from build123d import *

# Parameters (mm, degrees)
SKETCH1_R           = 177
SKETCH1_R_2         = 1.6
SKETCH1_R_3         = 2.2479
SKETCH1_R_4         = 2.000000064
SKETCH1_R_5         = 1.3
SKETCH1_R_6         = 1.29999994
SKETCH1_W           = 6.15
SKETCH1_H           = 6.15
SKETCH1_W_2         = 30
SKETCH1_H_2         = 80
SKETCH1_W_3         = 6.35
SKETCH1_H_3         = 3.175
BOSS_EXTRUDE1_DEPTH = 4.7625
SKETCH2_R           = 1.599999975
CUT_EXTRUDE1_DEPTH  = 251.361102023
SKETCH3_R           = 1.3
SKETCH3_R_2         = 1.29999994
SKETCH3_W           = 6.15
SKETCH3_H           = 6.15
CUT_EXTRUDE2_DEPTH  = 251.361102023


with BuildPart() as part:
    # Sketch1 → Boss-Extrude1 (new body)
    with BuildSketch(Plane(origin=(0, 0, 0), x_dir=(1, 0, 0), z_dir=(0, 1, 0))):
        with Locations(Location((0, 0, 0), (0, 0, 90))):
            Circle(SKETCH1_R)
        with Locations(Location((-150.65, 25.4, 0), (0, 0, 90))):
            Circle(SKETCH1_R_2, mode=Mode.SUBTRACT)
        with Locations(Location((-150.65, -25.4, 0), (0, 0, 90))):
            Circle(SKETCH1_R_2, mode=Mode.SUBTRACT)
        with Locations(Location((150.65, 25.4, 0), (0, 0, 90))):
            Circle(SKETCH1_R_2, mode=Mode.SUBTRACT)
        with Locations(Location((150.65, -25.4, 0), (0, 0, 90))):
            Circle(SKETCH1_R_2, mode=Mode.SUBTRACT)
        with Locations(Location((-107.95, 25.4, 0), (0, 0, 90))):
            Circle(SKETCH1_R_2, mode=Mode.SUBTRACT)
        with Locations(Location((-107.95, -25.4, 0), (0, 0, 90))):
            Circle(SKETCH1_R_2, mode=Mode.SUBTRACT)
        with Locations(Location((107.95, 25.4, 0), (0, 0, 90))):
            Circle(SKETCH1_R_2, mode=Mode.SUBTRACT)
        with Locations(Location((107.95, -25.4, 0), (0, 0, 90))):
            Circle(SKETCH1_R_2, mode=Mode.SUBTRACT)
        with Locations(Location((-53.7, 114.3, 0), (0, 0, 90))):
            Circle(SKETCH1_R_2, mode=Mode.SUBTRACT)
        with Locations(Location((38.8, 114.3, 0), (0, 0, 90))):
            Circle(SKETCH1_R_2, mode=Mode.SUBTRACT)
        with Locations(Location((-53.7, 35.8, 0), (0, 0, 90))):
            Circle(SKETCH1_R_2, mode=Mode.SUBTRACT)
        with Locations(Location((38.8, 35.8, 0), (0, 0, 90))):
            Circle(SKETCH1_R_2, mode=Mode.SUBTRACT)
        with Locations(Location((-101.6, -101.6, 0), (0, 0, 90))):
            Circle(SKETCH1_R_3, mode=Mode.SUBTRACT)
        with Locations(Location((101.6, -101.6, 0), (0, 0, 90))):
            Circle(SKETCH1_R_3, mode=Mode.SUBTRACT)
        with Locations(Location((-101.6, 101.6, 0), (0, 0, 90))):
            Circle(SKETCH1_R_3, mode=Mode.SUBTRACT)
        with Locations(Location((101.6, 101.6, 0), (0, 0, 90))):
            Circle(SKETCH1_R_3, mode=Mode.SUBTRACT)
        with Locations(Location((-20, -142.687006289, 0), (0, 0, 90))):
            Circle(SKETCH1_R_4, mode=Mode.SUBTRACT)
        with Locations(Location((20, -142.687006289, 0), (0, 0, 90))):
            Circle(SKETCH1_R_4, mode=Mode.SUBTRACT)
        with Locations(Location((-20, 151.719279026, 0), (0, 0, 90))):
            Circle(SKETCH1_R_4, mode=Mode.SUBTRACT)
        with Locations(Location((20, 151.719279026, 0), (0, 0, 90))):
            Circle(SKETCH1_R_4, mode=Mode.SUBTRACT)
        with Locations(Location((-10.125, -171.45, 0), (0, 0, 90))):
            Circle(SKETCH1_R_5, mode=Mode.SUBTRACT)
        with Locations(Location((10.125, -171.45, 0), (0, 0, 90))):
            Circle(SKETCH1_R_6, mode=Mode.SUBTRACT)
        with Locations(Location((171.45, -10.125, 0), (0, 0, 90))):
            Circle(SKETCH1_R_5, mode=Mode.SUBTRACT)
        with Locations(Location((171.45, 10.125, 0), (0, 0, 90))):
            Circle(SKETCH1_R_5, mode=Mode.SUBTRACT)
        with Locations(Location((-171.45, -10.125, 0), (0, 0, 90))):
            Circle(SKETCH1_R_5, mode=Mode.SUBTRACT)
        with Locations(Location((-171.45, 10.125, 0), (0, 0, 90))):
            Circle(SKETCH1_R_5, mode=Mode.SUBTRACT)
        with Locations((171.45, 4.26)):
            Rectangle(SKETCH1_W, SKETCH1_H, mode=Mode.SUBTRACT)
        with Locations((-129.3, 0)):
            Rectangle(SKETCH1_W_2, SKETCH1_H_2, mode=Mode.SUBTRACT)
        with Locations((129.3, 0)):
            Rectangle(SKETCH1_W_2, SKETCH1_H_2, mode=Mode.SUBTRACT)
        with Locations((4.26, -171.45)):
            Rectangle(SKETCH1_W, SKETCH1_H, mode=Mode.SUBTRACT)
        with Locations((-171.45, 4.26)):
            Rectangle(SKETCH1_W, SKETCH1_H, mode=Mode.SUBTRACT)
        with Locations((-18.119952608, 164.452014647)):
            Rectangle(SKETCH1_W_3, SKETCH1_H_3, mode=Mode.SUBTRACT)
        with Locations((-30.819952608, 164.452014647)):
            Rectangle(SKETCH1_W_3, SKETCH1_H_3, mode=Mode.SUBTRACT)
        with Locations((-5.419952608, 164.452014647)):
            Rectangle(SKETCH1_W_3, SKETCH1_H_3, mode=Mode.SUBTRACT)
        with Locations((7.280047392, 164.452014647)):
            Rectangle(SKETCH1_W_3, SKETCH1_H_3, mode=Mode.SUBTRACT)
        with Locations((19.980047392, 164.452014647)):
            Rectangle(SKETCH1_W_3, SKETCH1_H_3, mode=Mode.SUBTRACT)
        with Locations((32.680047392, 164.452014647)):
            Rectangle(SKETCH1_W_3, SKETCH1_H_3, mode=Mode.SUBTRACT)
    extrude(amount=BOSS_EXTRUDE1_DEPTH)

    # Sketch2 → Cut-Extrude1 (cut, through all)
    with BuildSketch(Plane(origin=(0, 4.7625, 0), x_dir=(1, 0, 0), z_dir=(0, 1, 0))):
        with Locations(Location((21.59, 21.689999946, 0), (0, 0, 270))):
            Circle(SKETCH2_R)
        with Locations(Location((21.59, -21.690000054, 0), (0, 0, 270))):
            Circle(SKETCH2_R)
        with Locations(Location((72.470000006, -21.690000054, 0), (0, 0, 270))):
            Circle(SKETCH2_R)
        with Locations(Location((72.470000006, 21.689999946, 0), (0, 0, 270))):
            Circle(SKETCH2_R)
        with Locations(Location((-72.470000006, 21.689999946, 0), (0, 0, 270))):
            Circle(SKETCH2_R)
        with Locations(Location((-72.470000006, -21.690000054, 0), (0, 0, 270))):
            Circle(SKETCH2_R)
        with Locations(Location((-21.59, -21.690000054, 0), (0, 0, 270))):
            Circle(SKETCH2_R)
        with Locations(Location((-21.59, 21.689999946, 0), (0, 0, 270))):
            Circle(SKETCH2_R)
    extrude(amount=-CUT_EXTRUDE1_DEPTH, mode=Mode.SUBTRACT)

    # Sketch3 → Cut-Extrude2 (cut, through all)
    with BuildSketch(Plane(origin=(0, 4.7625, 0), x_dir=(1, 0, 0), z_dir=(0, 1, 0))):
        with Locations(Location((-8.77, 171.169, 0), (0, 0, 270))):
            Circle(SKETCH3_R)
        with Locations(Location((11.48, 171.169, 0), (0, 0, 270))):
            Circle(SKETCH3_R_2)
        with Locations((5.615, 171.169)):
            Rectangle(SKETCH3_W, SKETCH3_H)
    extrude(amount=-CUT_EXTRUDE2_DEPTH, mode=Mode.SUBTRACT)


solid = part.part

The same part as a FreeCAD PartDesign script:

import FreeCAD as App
import Part
import Sketcher
from FreeCAD import Vector


def add_polygon(sketch, points):
    """Adds a closed chain of lines whose ends are joined by coincident constraints."""
    first, n = sketch.GeometryCount, len(points)
    for a, b in zip(points, points[1:] + points[:1]):
        sketch.addGeometry(Part.LineSegment(App.Vector(*a, 0), App.Vector(*b, 0)), False)
    for i in range(n):
        sketch.addConstraint(Sketcher.Constraint("Coincident", first + i, 2, first + (i + 1) % n, 1))

doc = App.newDocument("Part")
body = doc.addObject("PartDesign::Body", "Body")

sketch1 = body.newObject("Sketcher::SketchObject", "Sketch")
sketch1.AttachmentSupport = (doc.getObject("XZ_Plane"), [""])
sketch1.MapMode = "FlatFace"
sketch1.addGeometry(Part.Circle(Vector(0, 0, 0), Vector(0, 0, 1), 177), False)
sketch1.addGeometry(Part.Circle(Vector(101.6, 101.6, 0), Vector(0, 0, 1), 2.2), False)
sketch1.addGeometry(Part.Circle(Vector(171.4, 10.1, 0), Vector(0, 0, 1), 1.3), False)
sketch1.addGeometry(Part.Circle(Vector(150.7, 25.4, 0), Vector(0, 0, 1), 1.6), False)
sketch1.addGeometry(Part.Circle(Vector(108, 25.4, 0), Vector(0, 0, 1), 1.6), False)
sketch1.addGeometry(Part.Circle(Vector(10.1, 171.4, 0), Vector(0, 0, 1), 1.3), False)
add_polygon(sketch1, [(7.3, 174.5), (1.2, 174.5), (1.2, 168.4), (7.3, 168.4)])
sketch1.addGeometry(Part.Circle(Vector(20, 142.7, 0), Vector(0, 0, 1), 2), False)
add_polygon(sketch1, [(174.5, -1.2), (168.4, -1.2), (168.4, -7.3), (174.5, -7.3)])
sketch1.addGeometry(Part.Circle(Vector(171.4, -10.1, 0), Vector(0, 0, 1), 1.3), False)
sketch1.addGeometry(Part.Circle(Vector(150.7, -25.4, 0), Vector(0, 0, 1), 1.6), False)
add_polygon(sketch1, [(144.3, 40), (114.3, 40), (114.3, -40), (144.3, -40)])
sketch1.addGeometry(Part.Circle(Vector(108, -25.4, 0), Vector(0, 0, 1), 1.6), False)
sketch1.addGeometry(Part.Circle(Vector(101.6, -101.6, 0), Vector(0, 0, 1), 2.2), False)
sketch1.addGeometry(Part.Circle(Vector(38.8, -35.8, 0), Vector(0, 0, 1), 1.6), False)
sketch1.addGeometry(Part.Circle(Vector(38.8, -114.3, 0), Vector(0, 0, 1), 1.6), False)
add_polygon(sketch1, [(35.9, -162.9), (29.5, -162.9), (29.5, -166), (35.9, -166)])
sketch1.addGeometry(Part.Circle(Vector(20, -151.7, 0), Vector(0, 0, 1), 2), False)
add_polygon(sketch1, [(23.2, -162.9), (16.8, -162.9), (16.8, -166), (23.2, -166)])
add_polygon(sketch1, [(10.5, -162.9), (4.1, -162.9), (4.1, -166), (10.5, -166)])
sketch1.addGeometry(Part.Circle(Vector(-10.1, 171.4, 0), Vector(0, 0, 1), 1.3), False)
sketch1.addGeometry(Part.Circle(Vector(-20, 142.7, 0), Vector(0, 0, 1), 2), False)
sketch1.addGeometry(Part.Circle(Vector(-101.6, 101.6, 0), Vector(0, 0, 1), 2.2), False)
sketch1.addGeometry(Part.Circle(Vector(-108, 25.4, 0), Vector(0, 0, 1), 1.6), False)
sketch1.addGeometry(Part.Circle(Vector(-150.7, 25.4, 0), Vector(0, 0, 1), 1.6), False)
sketch1.addGeometry(Part.Circle(Vector(-171.4, 10.1, 0), Vector(0, 0, 1), 1.3), False)
sketch1.addGeometry(Part.Circle(Vector(-53.7, -35.8, 0), Vector(0, 0, 1), 1.6), False)
add_polygon(sketch1, [(-2.2, -162.9), (-8.6, -162.9), (-8.6, -166), (-2.2, -166)])
sketch1.addGeometry(Part.Circle(Vector(-20, -151.7, 0), Vector(0, 0, 1), 2), False)
add_polygon(sketch1, [(-14.9, -162.9), (-21.3, -162.9), (-21.3, -166), (-14.9, -166)])
add_polygon(sketch1, [(-27.6, -162.9), (-34, -162.9), (-34, -166), (-27.6, -166)])
sketch1.addGeometry(Part.Circle(Vector(-53.7, -114.3, 0), Vector(0, 0, 1), 1.6), False)
sketch1.addGeometry(Part.Circle(Vector(-108, -25.4, 0), Vector(0, 0, 1), 1.6), False)
add_polygon(sketch1, [(-114.3, 40), (-144.3, 40), (-144.3, -40), (-114.3, -40)])
sketch1.addGeometry(Part.Circle(Vector(-150.7, -25.4, 0), Vector(0, 0, 1), 1.6), False)
add_polygon(sketch1, [(-168.4, -1.2), (-174.5, -1.2), (-174.5, -7.3), (-168.4, -7.3)])
sketch1.addGeometry(Part.Circle(Vector(-171.4, -10.1, 0), Vector(0, 0, 1), 1.3), False)
sketch1.addGeometry(Part.Circle(Vector(-101.6, -101.6, 0), Vector(0, 0, 1), 2.2), False)
sketch1.addConstraint(Sketcher.Constraint("Horizontal", 6))
sketch1.addConstraint(Sketcher.Constraint("Vertical", 7))
sketch1.addConstraint(Sketcher.Constraint("Horizontal", 8))
sketch1.addConstraint(Sketcher.Constraint("Vertical", 9))
sketch1.addConstraint(Sketcher.Constraint("Horizontal", 11))
sketch1.addConstraint(Sketcher.Constraint("Vertical", 12))
sketch1.addConstraint(Sketcher.Constraint("Horizontal", 13))
sketch1.addConstraint(Sketcher.Constraint("Vertical", 14))
sketch1.addConstraint(Sketcher.Constraint("Horizontal", 17))
sketch1.addConstraint(Sketcher.Constraint("Vertical", 18))
sketch1.addConstraint(Sketcher.Constraint("Horizontal", 19))
sketch1.addConstraint(Sketcher.Constraint("Vertical", 20))
sketch1.addConstraint(Sketcher.Constraint("Horizontal", 25))
sketch1.addConstraint(Sketcher.Constraint("Vertical", 26))
sketch1.addConstraint(Sketcher.Constraint("Horizontal", 27))
sketch1.addConstraint(Sketcher.Constraint("Vertical", 28))
sketch1.addConstraint(Sketcher.Constraint("Horizontal", 30))
sketch1.addConstraint(Sketcher.Constraint("Vertical", 31))
sketch1.addConstraint(Sketcher.Constraint("Horizontal", 32))
sketch1.addConstraint(Sketcher.Constraint("Vertical", 33))
sketch1.addConstraint(Sketcher.Constraint("Horizontal", 34))
sketch1.addConstraint(Sketcher.Constraint("Vertical", 35))
sketch1.addConstraint(Sketcher.Constraint("Horizontal", 36))
sketch1.addConstraint(Sketcher.Constraint("Vertical", 37))
sketch1.addConstraint(Sketcher.Constraint("Horizontal", 45))
sketch1.addConstraint(Sketcher.Constraint("Vertical", 46))
sketch1.addConstraint(Sketcher.Constraint("Horizontal", 47))
sketch1.addConstraint(Sketcher.Constraint("Vertical", 48))
sketch1.addConstraint(Sketcher.Constraint("Horizontal", 50))
sketch1.addConstraint(Sketcher.Constraint("Vertical", 51))
sketch1.addConstraint(Sketcher.Constraint("Horizontal", 52))
sketch1.addConstraint(Sketcher.Constraint("Vertical", 53))
sketch1.addConstraint(Sketcher.Constraint("Horizontal", 54))
sketch1.addConstraint(Sketcher.Constraint("Vertical", 55))
sketch1.addConstraint(Sketcher.Constraint("Horizontal", 56))
sketch1.addConstraint(Sketcher.Constraint("Vertical", 57))
sketch1.addConstraint(Sketcher.Constraint("Horizontal", 60))
sketch1.addConstraint(Sketcher.Constraint("Vertical", 61))
sketch1.addConstraint(Sketcher.Constraint("Horizontal", 62))
sketch1.addConstraint(Sketcher.Constraint("Vertical", 63))
sketch1.addConstraint(Sketcher.Constraint("Horizontal", 65))
sketch1.addConstraint(Sketcher.Constraint("Vertical", 66))
sketch1.addConstraint(Sketcher.Constraint("Horizontal", 67))
sketch1.addConstraint(Sketcher.Constraint("Vertical", 68))
sketch1.addConstraint(Sketcher.Constraint("Coincident", 0, 3, -1, 1))
sketch1.addConstraint(Sketcher.Constraint("Equal", 3, 4))
sketch1.addConstraint(Sketcher.Constraint("Equal", 2, 5))
sketch1.addConstraint(Sketcher.Constraint("Equal", 5, 15))
sketch1.addConstraint(Sketcher.Constraint("Equal", 4, 16))
sketch1.addConstraint(Sketcher.Constraint("Equal", 16, 21))
sketch1.addConstraint(Sketcher.Constraint("Equal", 1, 22))
sketch1.addConstraint(Sketcher.Constraint("Equal", 21, 23))
sketch1.addConstraint(Sketcher.Constraint("Equal", 23, 24))
sketch1.addConstraint(Sketcher.Constraint("Equal", 10, 29))
sketch1.addConstraint(Sketcher.Constraint("Equal", 15, 38))
sketch1.addConstraint(Sketcher.Constraint("Equal", 29, 39))
sketch1.addConstraint(Sketcher.Constraint("Equal", 22, 40))
sketch1.addConstraint(Sketcher.Constraint("Equal", 24, 41))
sketch1.addConstraint(Sketcher.Constraint("Equal", 41, 42))
sketch1.addConstraint(Sketcher.Constraint("Equal", 38, 43))
sketch1.addConstraint(Sketcher.Constraint("Equal", 42, 44))
sketch1.addConstraint(Sketcher.Constraint("Equal", 39, 49))
sketch1.addConstraint(Sketcher.Constraint("Equal", 44, 58))
sketch1.addConstraint(Sketcher.Constraint("Equal", 58, 59))
sketch1.addConstraint(Sketcher.Constraint("Equal", 59, 64))
sketch1.addConstraint(Sketcher.Constraint("Equal", 43, 69))
sketch1.addConstraint(Sketcher.Constraint("Equal", 40, 70))
sketch1.addConstraint(Sketcher.Constraint("Symmetric", 22, 3, 40, 3, -1, 1))
sketch1.addConstraint(Sketcher.Constraint("Symmetric", 21, 3, 41, 3, -1, 1))
sketch1.addConstraint(Sketcher.Constraint("Symmetric", 16, 3, 42, 3, -1, 1))
sketch1.addConstraint(Sketcher.Constraint("Symmetric", 15, 3, 43, 3, -1, 1))
sketch1.addConstraint(Sketcher.Constraint("Symmetric", 4, 3, 59, 3, -1, 1))
sketch1.addConstraint(Sketcher.Constraint("Symmetric", 3, 3, 64, 3, -1, 1))
sketch1.addConstraint(Sketcher.Constraint("Symmetric", 2, 3, 69, 3, -1, 1))
sketch1.addConstraint(Sketcher.Constraint("Symmetric", 1, 3, 70, 3, -1, 1))
sketch1.addConstraint(Sketcher.Constraint("Symmetric", 19, 2, 60, 2, -1, 1))
sketch1.addConstraint(Sketcher.Constraint("Symmetric", 17, 2, 62, 2, -1, 1))
sketch1.addConstraint(Sketcher.Constraint("Symmetric", 5, 3, 38, 3, -2))
sketch1.addConstraint(Sketcher.Constraint("Symmetric", 10, 3, 39, 3, -2))
sketch1.addConstraint(Sketcher.Constraint("Symmetric", 1, 3, 40, 3, -2))
sketch1.addConstraint(Sketcher.Constraint("Symmetric", 4, 3, 41, 3, -2))
sketch1.addConstraint(Sketcher.Constraint("Symmetric", 3, 3, 42, 3, -2))
sketch1.addConstraint(Sketcher.Constraint("Symmetric", 2, 3, 43, 3, -2))
sketch1.addConstraint(Sketcher.Constraint("Symmetric", 29, 3, 49, 3, -2))
sketch1.addConstraint(Sketcher.Constraint("Symmetric", 14, 2, 65, 2, -2))
sketch1.addConstraint(Sketcher.Constraint("Symmetric", 12, 2, 67, 2, -2))
sketch1.addConstraint(Sketcher.Constraint("Horizontal", 3, 3, 4, 3))
sketch1.addConstraint(Sketcher.Constraint("Horizontal", 23, 3, 44, 3))
sketch1.addConstraint(Sketcher.Constraint("Horizontal", 24, 3, 58, 3))
sketch1.addConstraint(Sketcher.Constraint("Horizontal", 28, 2, 30, 2))
sketch1.addConstraint(Sketcher.Constraint("Horizontal", 27, 2, 31, 2))
sketch1.addConstraint(Sketcher.Constraint("Horizontal", 33, 2, 34, 2))
sketch1.addConstraint(Sketcher.Constraint("Horizontal", 32, 2, 35, 2))
sketch1.addConstraint(Sketcher.Constraint("Horizontal", 37, 2, 45, 2))
sketch1.addConstraint(Sketcher.Constraint("Horizontal", 36, 2, 46, 2))
sketch1.addConstraint(Sketcher.Constraint("Horizontal", 48, 2, 50, 2))
sketch1.addConstraint(Sketcher.Constraint("Horizontal", 47, 2, 51, 2))
sketch1.addConstraint(Sketcher.Constraint("Horizontal", 53, 2, 54, 2))
sketch1.addConstraint(Sketcher.Constraint("Horizontal", 52, 2, 55, 2))
sketch1.addConstraint(Sketcher.Constraint("Horizontal", 20, 2, 60, 2))
sketch1.addConstraint(Sketcher.Constraint("Vertical", 23, 3, 24, 3))
sketch1.addConstraint(Sketcher.Constraint("Vertical", 10, 3, 29, 3))
sketch1.addConstraint(Sketcher.Constraint("Vertical", 44, 3, 58, 3))
sketch1.addConstraint(Sketcher.Constraint("Equal", 8, 11))
sketch1.addConstraint(Sketcher.Constraint("Equal", 27, 30))
sketch1.addConstraint(Sketcher.Constraint("Equal", 32, 34))
sketch1.addConstraint(Sketcher.Constraint("Equal", 36, 45))
sketch1.addConstraint(Sketcher.Constraint("Equal", 47, 50))
sketch1.addConstraint(Sketcher.Constraint("Equal", 52, 54))
sketch1.addConstraint(Sketcher.Constraint("Equal", 67, 7))
sketch1.addConstraint(Sketcher.Constraint("Equal", 9, 12))
sketch1.addConstraint(Sketcher.Constraint("Diameter", 0, 354.0))
sketch1.addConstraint(Sketcher.Constraint("Diameter", 10, 4.0))
sketch1.addConstraint(Sketcher.Constraint("Diameter", 2, 2.6))
sketch1.addConstraint(Sketcher.Constraint("Diameter", 3, 3.2))
sketch1.addConstraint(Sketcher.Constraint("DistanceX", 17, 2, 17, 1, 30.0))
sketch1.addConstraint(Sketcher.Constraint("DistanceY", 18, 2, 18, 1, 80.0))
sketch1.addConstraint(Sketcher.Constraint("DistanceX", -1, 1, 10, 3, 20.0))
sketch1.addConstraint(Sketcher.Constraint("Diameter", 1, 4.4958))
sketch1.addConstraint(Sketcher.Constraint("DistanceX", 6, 2, 6, 1, 6.15))
sketch1.addConstraint(Sketcher.Constraint("DistanceX", 25, 2, 25, 1, 6.35))
sketch1.addConstraint(Sketcher.Constraint("DistanceX", -1, 1, 1, 3, 101.6))
sketch1.addConstraint(Sketcher.Constraint("DistanceY", -1, 1, 1, 3, 101.6))
sketch1.addConstraint(Sketcher.Constraint("DistanceY", -1, 1, 3, 3, 25.4))
sketch1.addConstraint(Sketcher.Constraint("DistanceX", -1, 1, 23, 3, 38.8))
sketch1.addConstraint(Sketcher.Constraint("DistanceY", 23, 3, -1, 1, 35.8))
sketch1.addConstraint(Sketcher.Constraint("DistanceY", 24, 3, -1, 1, 114.3))
sketch1.addConstraint(Sketcher.Constraint("DistanceX", 44, 3, -1, 1, 53.7))
sketch1.addConstraint(Sketcher.Constraint("DistanceX", -1, 1, 17, 2, 114.3))
sketch1.addConstraint(Sketcher.Constraint("DistanceY", 26, 2, 26, 1, 3.175))
sketch1.addConstraint(Sketcher.Constraint("DistanceX", -1, 1, 2, 3, 171.45))
sketch1.addConstraint(Sketcher.Constraint("DistanceX", -1, 1, 3, 3, 150.65))
sketch1.addConstraint(Sketcher.Constraint("DistanceX", -1, 1, 4, 3, 107.95))
sketch1.addConstraint(Sketcher.Constraint("DistanceY", -1, 1, 5, 3, 171.45))
sketch1.addConstraint(Sketcher.Constraint("DistanceY", -1, 1, 2, 3, 10.125))
sketch1.addConstraint(Sketcher.Constraint("DistanceX", -1, 1, 5, 3, 10.125))
sketch1.addConstraint(Sketcher.Constraint("DistanceX", -1, 1, 6, 2, 1.185))
sketch1.addConstraint(Sketcher.Constraint("DistanceY", -1, 1, 6, 2, 174.525))
sketch1.addConstraint(Sketcher.Constraint("DistanceX", -1, 1, 11, 2, 168.375))
sketch1.addConstraint(Sketcher.Constraint("DistanceY", 11, 2, -1, 1, 1.185))
sketch1.addConstraint(Sketcher.Constraint("DistanceY", 29, 3, -1, 1, 151.719279))
sketch1.addConstraint(Sketcher.Constraint("DistanceY", -1, 1, 10, 3, 142.687006))
sketch1.addConstraint(Sketcher.Constraint("DistanceX", -1, 1, 25, 2, 29.505047))
sketch1.addConstraint(Sketcher.Constraint("DistanceY", 25, 2, -1, 1, 162.864515))
sketch1.addConstraint(Sketcher.Constraint("DistanceX", -1, 1, 30, 2, 16.805047))
sketch1.addConstraint(Sketcher.Constraint("DistanceX", -1, 1, 34, 2, 4.105047))
sketch1.addConstraint(Sketcher.Constraint("DistanceX", 45, 2, -1, 1, 8.594953))
sketch1.addConstraint(Sketcher.Constraint("DistanceX", 50, 2, -1, 1, 21.294953))
sketch1.addConstraint(Sketcher.Constraint("DistanceX", 54, 2, -1, 1, 33.994953))
pad1 = body.newObject("PartDesign::Pad", "Pad")
pad1.Profile = sketch1
pad1.Length = 4.7625
pad1.Reversed = True

sketch2 = body.newObject("Sketcher::SketchObject", "Sketch001")
sketch2.AttachmentSupport = (doc.getObject("XZ_Plane"), [""])
sketch2.MapMode = "FlatFace"
sketch2.AttachmentOffset = App.Placement(Vector(0, 0, -4.7625), App.Rotation())
sketch2.addGeometry(Part.Circle(Vector(21.6, -21.7, 0), Vector(0, 0, 1), 1.6), False)
sketch2.addGeometry(Part.Circle(Vector(21.6, 21.7, 0), Vector(0, 0, 1), 1.6), False)
sketch2.addGeometry(Part.Circle(Vector(72.5, 21.7, 0), Vector(0, 0, 1), 1.6), False)
sketch2.addGeometry(Part.Circle(Vector(72.5, -21.7, 0), Vector(0, 0, 1), 1.6), False)
sketch2.addGeometry(Part.Circle(Vector(-72.5, -21.7, 0), Vector(0, 0, 1), 1.6), False)
sketch2.addGeometry(Part.Circle(Vector(-72.5, 21.7, 0), Vector(0, 0, 1), 1.6), False)
sketch2.addGeometry(Part.Circle(Vector(-21.6, 21.7, 0), Vector(0, 0, 1), 1.6), False)
sketch2.addGeometry(Part.Circle(Vector(-21.6, -21.7, 0), Vector(0, 0, 1), 1.6), False)
sketch2.addConstraint(Sketcher.Constraint("Equal", 0, 1))
sketch2.addConstraint(Sketcher.Constraint("Equal", 1, 2))
sketch2.addConstraint(Sketcher.Constraint("Equal", 2, 3))
sketch2.addConstraint(Sketcher.Constraint("Equal", 3, 4))
sketch2.addConstraint(Sketcher.Constraint("Equal", 4, 5))
sketch2.addConstraint(Sketcher.Constraint("Equal", 5, 6))
sketch2.addConstraint(Sketcher.Constraint("Equal", 6, 7))
sketch2.addConstraint(Sketcher.Constraint("Symmetric", 2, 3, 4, 3, -1, 1))
sketch2.addConstraint(Sketcher.Constraint("Symmetric", 3, 3, 5, 3, -1, 1))
sketch2.addConstraint(Sketcher.Constraint("Symmetric", 0, 3, 6, 3, -1, 1))
sketch2.addConstraint(Sketcher.Constraint("Symmetric", 1, 3, 7, 3, -1, 1))
sketch2.addConstraint(Sketcher.Constraint("Symmetric", 3, 3, 4, 3, -2))
sketch2.addConstraint(Sketcher.Constraint("Symmetric", 1, 3, 6, 3, -2))
sketch2.addConstraint(Sketcher.Constraint("Horizontal", 1, 3, 2, 3))
sketch2.addConstraint(Sketcher.Constraint("Diameter", 0, 3.2))
sketch2.addConstraint(Sketcher.Constraint("DistanceX", -1, 1, 0, 3, 21.59))
sketch2.addConstraint(Sketcher.Constraint("DistanceY", 0, 3, -1, 1, 21.69))
sketch2.addConstraint(Sketcher.Constraint("DistanceX", -1, 1, 2, 3, 72.47))
pocket1 = body.newObject("PartDesign::Pocket", "Pocket")
pocket1.Profile = sketch2
pocket1.Type = "ThroughAll"
pocket1.Reversed = True

sketch3 = body.newObject("Sketcher::SketchObject", "Sketch002")
sketch3.AttachmentSupport = (doc.getObject("XZ_Plane"), [""])
sketch3.MapMode = "FlatFace"
sketch3.AttachmentOffset = App.Placement(Vector(0, 0, -4.7625), App.Rotation())
sketch3.addGeometry(Part.Circle(Vector(-8.8, -171.2, 0), Vector(0, 0, 1), 1.3), False)
sketch3.addGeometry(Part.Circle(Vector(11.5, -171.2, 0), Vector(0, 0, 1), 1.3), False)
add_polygon(sketch3, [(2.5, -174.2), (2.5, -168.1), (8.7, -168.1), (8.7, -174.2)])
sketch3.addConstraint(Sketcher.Constraint("Vertical", 2))
sketch3.addConstraint(Sketcher.Constraint("Horizontal", 3))
sketch3.addConstraint(Sketcher.Constraint("Vertical", 4))
sketch3.addConstraint(Sketcher.Constraint("Horizontal", 5))
sketch3.addConstraint(Sketcher.Constraint("Equal", 0, 1))
sketch3.addConstraint(Sketcher.Constraint("Horizontal", 0, 3, 1, 3))
sketch3.addConstraint(Sketcher.Constraint("Equal", 5, 2))
sketch3.addConstraint(Sketcher.Constraint("Diameter", 0, 2.6))
sketch3.addConstraint(Sketcher.Constraint("DistanceX", 3, 1, 3, 2, 6.15))
sketch3.addConstraint(Sketcher.Constraint("DistanceX", 0, 3, -1, 1, 8.77))
sketch3.addConstraint(Sketcher.Constraint("DistanceX", -1, 1, 1, 3, 11.48))
sketch3.addConstraint(Sketcher.Constraint("DistanceX", -1, 1, 2, 2, 2.54))
sketch3.addConstraint(Sketcher.Constraint("DistanceY", 0, 3, -1, 1, 171.169))
sketch3.addConstraint(Sketcher.Constraint("DistanceY", 2, 2, -1, 1, 168.094))
pocket2 = body.newObject("PartDesign::Pocket", "Pocket001")
pocket2.Profile = sketch3
pocket2.Type = "ThroughAll"
pocket2.Reversed = True

doc.recompute()
